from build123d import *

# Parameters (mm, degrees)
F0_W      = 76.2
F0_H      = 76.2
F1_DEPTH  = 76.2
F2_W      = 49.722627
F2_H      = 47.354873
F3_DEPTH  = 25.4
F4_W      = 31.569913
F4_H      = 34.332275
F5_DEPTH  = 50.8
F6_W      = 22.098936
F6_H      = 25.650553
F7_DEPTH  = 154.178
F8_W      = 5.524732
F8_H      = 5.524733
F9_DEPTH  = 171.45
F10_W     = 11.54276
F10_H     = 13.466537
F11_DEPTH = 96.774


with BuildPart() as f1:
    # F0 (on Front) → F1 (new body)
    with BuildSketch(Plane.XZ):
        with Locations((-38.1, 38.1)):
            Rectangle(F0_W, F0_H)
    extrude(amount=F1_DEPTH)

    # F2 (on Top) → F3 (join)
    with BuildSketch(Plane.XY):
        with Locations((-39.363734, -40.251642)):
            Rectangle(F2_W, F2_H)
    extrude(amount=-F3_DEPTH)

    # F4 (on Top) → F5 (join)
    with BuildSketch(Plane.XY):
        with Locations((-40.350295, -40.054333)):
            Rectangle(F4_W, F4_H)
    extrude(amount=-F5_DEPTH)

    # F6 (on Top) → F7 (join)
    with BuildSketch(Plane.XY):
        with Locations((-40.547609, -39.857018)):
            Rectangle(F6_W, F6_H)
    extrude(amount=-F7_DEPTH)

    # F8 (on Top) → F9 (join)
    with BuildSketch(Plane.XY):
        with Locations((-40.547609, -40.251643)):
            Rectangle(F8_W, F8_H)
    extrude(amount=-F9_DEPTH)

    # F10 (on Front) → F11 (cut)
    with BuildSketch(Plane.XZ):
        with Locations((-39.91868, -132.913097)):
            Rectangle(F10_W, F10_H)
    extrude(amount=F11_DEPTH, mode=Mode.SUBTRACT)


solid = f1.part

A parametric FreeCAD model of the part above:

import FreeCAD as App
import Part
import Sketcher

V = App.Vector
Q = App.Units.Quantity

doc = App.newDocument("Part")
body = doc.addObject("PartDesign::Body", "Body")

sketch1 = doc.addObject("Sketcher::SketchObject", "Sketch")
body.addObject(sketch1)
sketch1.AttachmentSupport = (doc.XZ_Plane, [""])
sketch1.MapMode = "FlatFace"
sketch1.addGeometry([
    Part.LineSegment(V(-76.2, 76.2, 0), V(-76.2, 0, 0)),
    Part.LineSegment(V(-76.2, 0, 0), V(0, 0, 0)),
    Part.LineSegment(V(0, 0, 0), V(0, 76.2, 0)),
    Part.LineSegment(V(0, 76.2, 0), V(-76.2, 76.2, 0)),
], False)
sketch1.addConstraint([
    Sketcher.Constraint("Coincident", 0, 2, 1, 1),
    Sketcher.Constraint("Coincident", 1, 2, 2, 1),
    Sketcher.Constraint("Coincident", 2, 2, 3, 1),
    Sketcher.Constraint("Coincident", 3, 2, 0, 1),
    Sketcher.Constraint("Vertical", 0),
    Sketcher.Constraint("Horizontal", 1),
    Sketcher.Constraint("Vertical", 2),
    Sketcher.Constraint("Horizontal", 3),
    Sketcher.Constraint("Coincident", 1, 2, -1, 1),
    Sketcher.Constraint("Equal", 3, 0),
    Sketcher.Constraint("DistanceX", 1, 1, 1, 2, Q("3 in")),
])
pad1 = doc.addObject("PartDesign::Pad", "Pad")
body.addObject(pad1)
pad1.Profile = sketch1
pad1.Length = Q("3 in")

sketch2 = doc.addObject("Sketcher::SketchObject", "Sketch001")
body.addObject(sketch2)
sketch2.AttachmentSupport = (doc.XY_Plane, [""])
sketch2.MapMode = "FlatFace"
sketch2.addGeometry([
    Part.LineSegment(V(-64.225048, -16.574206, 0), V(-64.225048, -63.929079, 0)),
    Part.LineSegment(V(-64.225048, -63.929079, 0), V(-14.50242, -63.929079, 0)),
    Part.LineSegment(V(-14.50242, -63.929079, 0), V(-14.50242, -16.574206, 0)),
    Part.LineSegment(V(-14.50242, -16.574206, 0), V(-64.225048, -16.574206, 0)),
], False)
sketch2.addConstraint([
    Sketcher.Constraint("Coincident", 0, 2, 1, 1),
    Sketcher.Constraint("Coincident", 1, 2, 2, 1),
    Sketcher.Constraint("Coincident", 2, 2, 3, 1),
    Sketcher.Constraint("Coincident", 3, 2, 0, 1),
    Sketcher.Constraint("Vertical", 0),
    Sketcher.Constraint("Horizontal", 1),
    Sketcher.Constraint("Vertical", 2),
    Sketcher.Constraint("Horizontal", 3),
    Sketcher.Constraint("DistanceX", 1, 1, 1, 2, 49.722627),
    Sketcher.Constraint("DistanceY", 0, 2, 0, 1, 47.354873),
    Sketcher.Constraint("DistanceY", 0, 2, -1, 1, 63.929079),
    Sketcher.Constraint("DistanceX", 1, 2, -1, 1, 14.50242),
])
pad2 = doc.addObject("PartDesign::Pad", "Pad001")
body.addObject(pad2)
pad2.Profile = sketch2
pad2.Length = Q("1 in")
pad2.Reversed = True

sketch3 = doc.addObject("Sketcher::SketchObject", "Sketch002")
body.addObject(sketch3)
sketch3.AttachmentSupport = (doc.XY_Plane, [""])
sketch3.MapMode = "FlatFace"
sketch3.addGeometry([
    Part.LineSegment(V(-56.135252, -22.888195, 0), V(-56.135252, -57.22047, 0)),
    Part.LineSegment(V(-56.135252, -57.22047, 0), V(-24.565338, -57.22047, 0)),
    Part.LineSegment(V(-24.565338, -57.22047, 0), V(-24.565338, -22.888195, 0)),
    Part.LineSegment(V(-24.565338, -22.888195, 0), V(-56.135252, -22.888195, 0)),
], False)
sketch3.addConstraint([
    Sketcher.Constraint("Coincident", 0, 2, 1, 1),
    Sketcher.Constraint("Coincident", 1, 2, 2, 1),
    Sketcher.Constraint("Coincident", 2, 2, 3, 1),
    Sketcher.Constraint("Coincident", 3, 2, 0, 1),
    Sketcher.Constraint("Vertical", 0),
    Sketcher.Constraint("Horizontal", 1),
    Sketcher.Constraint("Vertical", 2),
    Sketcher.Constraint("Horizontal", 3),
    Sketcher.Constraint("DistanceX", 1, 1, 1, 2, 31.569913),
    Sketcher.Constraint("DistanceY", 0, 2, 0, 1, 34.332275),
    Sketcher.Constraint("DistanceX", 0, 2, -1, 1, 56.135252),
    Sketcher.Constraint("DistanceY", 0, 2, -1, 1, 57.22047),
])
pad3 = doc.addObject("PartDesign::Pad", "Pad002")
body.addObject(pad3)
pad3.Profile = sketch3
pad3.Length = Q("2 in")
pad3.Reversed = True

sketch4 = doc.addObject("Sketcher::SketchObject", "Sketch003")
body.addObject(sketch4)
sketch4.AttachmentSupport = (doc.XY_Plane, [""])
sketch4.MapMode = "FlatFace"
sketch4.addGeometry([
    Part.LineSegment(V(-51.597077, -27.031741, 0), V(-51.597077, -52.682294, 0)),
    Part.LineSegment(V(-51.597077, -52.682294, 0), V(-29.498141, -52.682294, 0)),
    Part.LineSegment(V(-29.498141, -52.682294, 0), V(-29.498141, -27.031741, 0)),
    Part.LineSegment(V(-29.498141, -27.031741, 0), V(-51.597077, -27.031741, 0)),
], False)
sketch4.addConstraint([
    Sketcher.Constraint("Coincident", 0, 2, 1, 1),
    Sketcher.Constraint("Coincident", 1, 2, 2, 1),
    Sketcher.Constraint("Coincident", 2, 2, 3, 1),
    Sketcher.Constraint("Coincident", 3, 2, 0, 1),
    Sketcher.Constraint("Vertical", 0),
    Sketcher.Constraint("Horizontal", 1),
    Sketcher.Constraint("Vertical", 2),
    Sketcher.Constraint("Horizontal", 3),
    Sketcher.Constraint("DistanceX", 1, 1, 1, 2, 22.098936),
    Sketcher.Constraint("DistanceY", 0, 2, 0, 1, 25.650553),
    Sketcher.Constraint("DistanceX", 1, 2, -1, 1, 29.498141),
    Sketcher.Constraint("DistanceY", 2, 2, -1, 1, 27.031741),
])
pad4 = doc.addObject("PartDesign::Pad", "Pad003")
body.addObject(pad4)
pad4.Profile = sketch4
pad4.Length = Q("6.07 in")
pad4.Reversed = True

sketch5 = doc.addObject("Sketcher::SketchObject", "Sketch004")
body.addObject(sketch5)
sketch5.AttachmentSupport = (doc.XY_Plane, [""])
sketch5.MapMode = "FlatFace"
sketch5.addGeometry([
    Part.LineSegment(V(-43.309975, -37.489277, 0), V(-43.309975, -43.01401, 0)),
    Part.LineSegment(V(-43.309975, -43.01401, 0), V(-37.785243, -43.01401, 0)),
    Part.LineSegment(V(-37.785243, -43.01401, 0), V(-37.785243, -37.489277, 0)),
    Part.LineSegment(V(-37.785243, -37.489277, 0), V(-43.309975, -37.489277, 0)),
], False)
sketch5.addConstraint([
    Sketcher.Constraint("Coincident", 0, 2, 1, 1),
    Sketcher.Constraint("Coincident", 1, 2, 2, 1),
    Sketcher.Constraint("Coincident", 2, 2, 3, 1),
    Sketcher.Constraint("Coincident", 3, 2, 0, 1),
    Sketcher.Constraint("Vertical", 0),
    Sketcher.Constraint("Horizontal", 1),
    Sketcher.Constraint("Vertical", 2),
    Sketcher.Constraint("Horizontal", 3),
    Sketcher.Constraint("Equal", 3, 0),
    Sketcher.Constraint("DistanceX", 1, 1, 1, 2, 5.524732),
    Sketcher.Constraint("DistanceY", 0, 2, -1, 1, 43.01401),
    Sketcher.Constraint("DistanceX", 0, 2, -1, 1, 43.309975),
])
pad5 = doc.addObject("PartDesign::Pad", "Pad004")
body.addObject(pad5)
pad5.Profile = sketch5
pad5.Length = Q("6.75 in")
pad5.Reversed = True

sketch6 = doc.addObject("Sketcher::SketchObject", "Sketch005")
body.addObject(sketch6)
sketch6.AttachmentSupport = (doc.XZ_Plane, [""])
sketch6.MapMode = "FlatFace"
sketch6.addGeometry([
    Part.LineSegment(V(-45.69006, -126.179828, 0), V(-45.69006, -139.646366, 0)),
    Part.LineSegment(V(-45.69006, -139.646366, 0), V(-34.1473, -139.646366, 0)),
    Part.LineSegment(V(-34.1473, -139.646366, 0), V(-34.1473, -126.179828, 0)),
    Part.LineSegment(V(-34.1473, -126.179828, 0), V(-45.69006, -126.179828, 0)),
], False)
sketch6.addConstraint([
    Sketcher.Constraint("Coincident", 0, 2, 1, 1),
    Sketcher.Constraint("Coincident", 1, 2, 2, 1),
    Sketcher.Constraint("Coincident", 2, 2, 3, 1),
    Sketcher.Constraint("Coincident", 3, 2, 0, 1),
    Sketcher.Constraint("Vertical", 0),
    Sketcher.Constraint("Horizontal", 1),
    Sketcher.Constraint("Vertical", 2),
    Sketcher.Constraint("Horizontal", 3),
    Sketcher.Constraint("DistanceX", 1, 1, 1, 2, 11.54276),
    Sketcher.Constraint("DistanceX", 1, 2, -1, 1, 34.1473),
    Sketcher.Constraint("DistanceY", 0, 2, 0, 1, 13.466537),
    Sketcher.Constraint("DistanceY", 2, 2, -1, 1, 126.179828),
])
pocket1 = doc.addObject("PartDesign::Pocket", "Pocket")
body.addObject(pocket1)
pocket1.Profile = sketch6
pocket1.Length = Q("3.81 in")
pocket1.Reversed = True

doc.recompute()
